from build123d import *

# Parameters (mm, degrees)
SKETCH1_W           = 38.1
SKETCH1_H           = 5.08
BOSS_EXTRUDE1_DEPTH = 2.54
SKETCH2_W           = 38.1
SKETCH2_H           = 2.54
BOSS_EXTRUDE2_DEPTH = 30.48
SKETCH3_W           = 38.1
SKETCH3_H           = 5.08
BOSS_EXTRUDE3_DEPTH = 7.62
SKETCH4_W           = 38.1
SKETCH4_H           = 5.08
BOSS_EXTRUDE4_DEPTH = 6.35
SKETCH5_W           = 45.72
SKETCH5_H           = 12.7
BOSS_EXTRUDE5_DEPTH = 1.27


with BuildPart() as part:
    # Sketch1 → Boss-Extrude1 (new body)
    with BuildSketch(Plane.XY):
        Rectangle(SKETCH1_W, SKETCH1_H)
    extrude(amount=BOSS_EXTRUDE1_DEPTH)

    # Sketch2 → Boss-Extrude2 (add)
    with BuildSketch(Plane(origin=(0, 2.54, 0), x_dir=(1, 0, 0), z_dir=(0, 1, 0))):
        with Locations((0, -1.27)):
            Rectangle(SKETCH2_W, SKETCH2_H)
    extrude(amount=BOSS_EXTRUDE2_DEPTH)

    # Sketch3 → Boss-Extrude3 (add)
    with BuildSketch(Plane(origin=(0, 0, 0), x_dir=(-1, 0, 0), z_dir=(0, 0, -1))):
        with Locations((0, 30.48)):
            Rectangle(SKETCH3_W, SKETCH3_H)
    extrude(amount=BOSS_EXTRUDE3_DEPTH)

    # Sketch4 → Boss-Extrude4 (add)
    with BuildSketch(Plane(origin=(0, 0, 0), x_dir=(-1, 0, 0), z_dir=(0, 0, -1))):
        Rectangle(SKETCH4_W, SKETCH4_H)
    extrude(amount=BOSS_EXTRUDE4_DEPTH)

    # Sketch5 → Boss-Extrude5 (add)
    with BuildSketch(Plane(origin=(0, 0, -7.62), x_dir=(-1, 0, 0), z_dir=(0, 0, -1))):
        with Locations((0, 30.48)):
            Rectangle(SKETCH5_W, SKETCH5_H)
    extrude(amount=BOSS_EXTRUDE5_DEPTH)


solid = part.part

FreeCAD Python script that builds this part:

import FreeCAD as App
import Part
import Sketcher
from FreeCAD import Vector
Q = App.Units.Quantity

doc = App.newDocument("Part")
body = doc.addObject("PartDesign::Body", "Body")

sketch1 = doc.addObject("Sketcher::SketchObject", "Sketch")
body.addObject(sketch1)
sketch1.AttachmentSupport = (doc.XY_Plane, [""])
sketch1.MapMode = "FlatFace"
sketch1.addGeometry([
    Part.LineSegment(Vector(-19.05, 2.54, 0), Vector(-19.05, -2.54, 0)),
    Part.LineSegment(Vector(-19.05, -2.54, 0), Vector(19.05, -2.54, 0)),
    Part.LineSegment(Vector(19.05, -2.54, 0), Vector(19.05, 2.54, 0)),
    Part.LineSegment(Vector(19.05, 2.54, 0), Vector(-19.05, 2.54, 0)),
], False)
sketch1.addConstraint([
    Sketcher.Constraint("Coincident", 0, 2, 1, 1),
    Sketcher.Constraint("Coincident", 1, 2, 2, 1),
    Sketcher.Constraint("Coincident", 2, 2, 3, 1),
    Sketcher.Constraint("Coincident", 3, 2, 0, 1),
    Sketcher.Constraint("Vertical", 0),
    Sketcher.Constraint("Horizontal", 1),
    Sketcher.Constraint("Vertical", 2),
    Sketcher.Constraint("Horizontal", 3),
    Sketcher.Constraint("Symmetric", 0, 2, 2, 2, -1, 1),
    Sketcher.Constraint("DistanceX", 1, 1, 1, 2, Q("1.5 in")),
    Sketcher.Constraint("DistanceY", 0, 2, 0, 1, Q("0.2 in")),
])
pad1 = doc.addObject("PartDesign::Pad", "Pad")
body.addObject(pad1)
pad1.Profile = sketch1
pad1.Length = Q("0.1 in")

sketch2 = doc.addObject("Sketcher::SketchObject", "Sketch001")
body.addObject(sketch2)
sketch2.AttachmentSupport = (doc.XZ_Plane, [""])
sketch2.MapMode = "FlatFace"
sketch2.AttachmentOffset = App.Placement(Vector(0, 0, -0.1 * 25.4), App.Rotation())
sketch2.addGeometry([
    Part.LineSegment(Vector(-19.05, 0, 0), Vector(-19.05, 2.54, 0)),
    Part.LineSegment(Vector(-19.05, 2.54, 0), Vector(19.05, 2.54, 0)),
    Part.LineSegment(Vector(19.05, 2.54, 0), Vector(19.05, 0, 0)),
    Part.LineSegment(Vector(19.05, 0, 0), Vector(-19.05, 0, 0)),
], False)
sketch2.addConstraint([
    Sketcher.Constraint("Coincident", 0, 2, 1, 1),
    Sketcher.Constraint("Coincident", 1, 2, 2, 1),
    Sketcher.Constraint("Coincident", 2, 2, 3, 1),
    Sketcher.Constraint("Coincident", 3, 2, 0, 1),
    Sketcher.Constraint("Vertical", 0),
    Sketcher.Constraint("Horizontal", 1),
    Sketcher.Constraint("Vertical", 2),
    Sketcher.Constraint("Horizontal", 3),
    Sketcher.Constraint("Symmetric", 2, 2, 3, 2, -1, 1),
    Sketcher.Constraint("DistanceX", 1, 1, 1, 2, Q("1.5 in")),
    Sketcher.Constraint("DistanceY", 0, 1, 0, 2, Q("0.1 in")),
])
pad2 = doc.addObject("PartDesign::Pad", "Pad001")
body.addObject(pad2)
pad2.Profile = sketch2
pad2.Length = Q("1.2 in")
pad2.Reversed = True

sketch3 = doc.addObject("Sketcher::SketchObject", "Sketch002")
body.addObject(sketch3)
sketch3.AttachmentSupport = (doc.XY_Plane, [""])
sketch3.MapMode = "FlatFace"
sketch3.addGeometry([
    Part.LineSegment(Vector(19.05, 33.02, 0), Vector(19.05, 27.94, 0)),
    Part.LineSegment(Vector(19.05, 27.94, 0), Vector(-19.05, 27.94, 0)),
    Part.LineSegment(Vector(-19.05, 27.94, 0), Vector(-19.05, 33.02, 0)),
    Part.LineSegment(Vector(-19.05, 33.02, 0), Vector(19.05, 33.02, 0)),
], False)
sketch3.addConstraint([
    Sketcher.Constraint("Coincident", 0, 2, 1, 1),
    Sketcher.Constraint("Coincident", 1, 2, 2, 1),
    Sketcher.Constraint("Coincident", 2, 2, 3, 1),
    Sketcher.Constraint("Coincident", 3, 2, 0, 1),
    Sketcher.Constraint("Vertical", 0),
    Sketcher.Constraint("Horizontal", 1),
    Sketcher.Constraint("Vertical", 2),
    Sketcher.Constraint("Horizontal", 3),
    Sketcher.Constraint("DistanceX", 1, 2, 1, 1, Q("1.5 in")),
    Sketcher.Constraint("DistanceY", 0, 2, 0, 1, Q("0.2 in")),
    Sketcher.Constraint("DistanceY", -1, 1, 0, 2, Q("1.1 in")),
    Sketcher.Constraint("DistanceX", -1, 1, 0, 2, Q("0.75 in")),
])
pad3 = doc.addObject("PartDesign::Pad", "Pad002")
body.addObject(pad3)
pad3.Profile = sketch3
pad3.Length = Q("0.3 in")
pad3.Reversed = True

sketch4 = doc.addObject("Sketcher::SketchObject", "Sketch003")
body.addObject(sketch4)
sketch4.AttachmentSupport = (doc.XY_Plane, [""])
sketch4.MapMode = "FlatFace"
sketch4.addGeometry([
    Part.LineSegment(Vector(19.05, 2.54, 0), Vector(19.05, -2.54, 0)),
    Part.LineSegment(Vector(19.05, -2.54, 0), Vector(-19.05, -2.54, 0)),
    Part.LineSegment(Vector(-19.05, -2.54, 0), Vector(-19.05, 2.54, 0)),
    Part.LineSegment(Vector(-19.05, 2.54, 0), Vector(19.05, 2.54, 0)),
], False)
sketch4.addConstraint([
    Sketcher.Constraint("Coincident", 0, 2, 1, 1),
    Sketcher.Constraint("Coincident", 1, 2, 2, 1),
    Sketcher.Constraint("Coincident", 2, 2, 3, 1),
    Sketcher.Constraint("Coincident", 3, 2, 0, 1),
    Sketcher.Constraint("Vertical", 0),
    Sketcher.Constraint("Horizontal", 1),
    Sketcher.Constraint("Vertical", 2),
    Sketcher.Constraint("Horizontal", 3),
    Sketcher.Constraint("Symmetric", 0, 2, 2, 2, -1, 1),
    Sketcher.Constraint("DistanceX", 1, 2, 1, 1, Q("1.5 in")),
    Sketcher.Constraint("DistanceY", 0, 2, 0, 1, Q("0.2 in")),
])
pad4 = doc.addObject("PartDesign::Pad", "Pad003")
body.addObject(pad4)
pad4.Profile = sketch4
pad4.Length = Q("0.25 in")
pad4.Reversed = True

sketch5 = doc.addObject("Sketcher::SketchObject", "Sketch004")
body.addObject(sketch5)
sketch5.AttachmentSupport = (doc.XY_Plane, [""])
sketch5.MapMode = "FlatFace"
sketch5.AttachmentOffset = App.Placement(Vector(0, 0, -0.3 * 25.4), App.Rotation())
sketch5.addGeometry([
    Part.LineSegment(Vector(22.86, 36.83, 0), Vector(22.86, 24.13, 0)),
    Part.LineSegment(Vector(22.86, 24.13, 0), Vector(-22.86, 24.13, 0)),
    Part.LineSegment(Vector(-22.86, 24.13, 0), Vector(-22.86, 36.83, 0)),
    Part.LineSegment(Vector(-22.86, 36.83, 0), Vector(22.86, 36.83, 0)),
], False)
sketch5.addConstraint([
    Sketcher.Constraint("Coincident", 0, 2, 1, 1),
    Sketcher.Constraint("Coincident", 1, 2, 2, 1),
    Sketcher.Constraint("Coincident", 2, 2, 3, 1),
    Sketcher.Constraint("Coincident", 3, 2, 0, 1),
    Sketcher.Constraint("Vertical", 0),
    Sketcher.Constraint("Horizontal", 1),
    Sketcher.Constraint("Vertical", 2),
    Sketcher.Constraint("Horizontal", 3),
    Sketcher.Constraint("DistanceX", 1, 2, 1, 1, Q("1.8 in")),
    Sketcher.Constraint("DistanceY", 0, 2, 0, 1, Q("0.5 in")),
    Sketcher.Constraint("DistanceX", -1, 1, 0, 2, Q("0.9 in")),
    Sketcher.Constraint("DistanceY", -1, 1, 0, 2, Q("0.95 in")),
])
pad5 = doc.addObject("PartDesign::Pad", "Pad004")
body.addObject(pad5)
pad5.Profile = sketch5
pad5.Length = Q("0.05 in")
pad5.Reversed = True

doc.recompute()
